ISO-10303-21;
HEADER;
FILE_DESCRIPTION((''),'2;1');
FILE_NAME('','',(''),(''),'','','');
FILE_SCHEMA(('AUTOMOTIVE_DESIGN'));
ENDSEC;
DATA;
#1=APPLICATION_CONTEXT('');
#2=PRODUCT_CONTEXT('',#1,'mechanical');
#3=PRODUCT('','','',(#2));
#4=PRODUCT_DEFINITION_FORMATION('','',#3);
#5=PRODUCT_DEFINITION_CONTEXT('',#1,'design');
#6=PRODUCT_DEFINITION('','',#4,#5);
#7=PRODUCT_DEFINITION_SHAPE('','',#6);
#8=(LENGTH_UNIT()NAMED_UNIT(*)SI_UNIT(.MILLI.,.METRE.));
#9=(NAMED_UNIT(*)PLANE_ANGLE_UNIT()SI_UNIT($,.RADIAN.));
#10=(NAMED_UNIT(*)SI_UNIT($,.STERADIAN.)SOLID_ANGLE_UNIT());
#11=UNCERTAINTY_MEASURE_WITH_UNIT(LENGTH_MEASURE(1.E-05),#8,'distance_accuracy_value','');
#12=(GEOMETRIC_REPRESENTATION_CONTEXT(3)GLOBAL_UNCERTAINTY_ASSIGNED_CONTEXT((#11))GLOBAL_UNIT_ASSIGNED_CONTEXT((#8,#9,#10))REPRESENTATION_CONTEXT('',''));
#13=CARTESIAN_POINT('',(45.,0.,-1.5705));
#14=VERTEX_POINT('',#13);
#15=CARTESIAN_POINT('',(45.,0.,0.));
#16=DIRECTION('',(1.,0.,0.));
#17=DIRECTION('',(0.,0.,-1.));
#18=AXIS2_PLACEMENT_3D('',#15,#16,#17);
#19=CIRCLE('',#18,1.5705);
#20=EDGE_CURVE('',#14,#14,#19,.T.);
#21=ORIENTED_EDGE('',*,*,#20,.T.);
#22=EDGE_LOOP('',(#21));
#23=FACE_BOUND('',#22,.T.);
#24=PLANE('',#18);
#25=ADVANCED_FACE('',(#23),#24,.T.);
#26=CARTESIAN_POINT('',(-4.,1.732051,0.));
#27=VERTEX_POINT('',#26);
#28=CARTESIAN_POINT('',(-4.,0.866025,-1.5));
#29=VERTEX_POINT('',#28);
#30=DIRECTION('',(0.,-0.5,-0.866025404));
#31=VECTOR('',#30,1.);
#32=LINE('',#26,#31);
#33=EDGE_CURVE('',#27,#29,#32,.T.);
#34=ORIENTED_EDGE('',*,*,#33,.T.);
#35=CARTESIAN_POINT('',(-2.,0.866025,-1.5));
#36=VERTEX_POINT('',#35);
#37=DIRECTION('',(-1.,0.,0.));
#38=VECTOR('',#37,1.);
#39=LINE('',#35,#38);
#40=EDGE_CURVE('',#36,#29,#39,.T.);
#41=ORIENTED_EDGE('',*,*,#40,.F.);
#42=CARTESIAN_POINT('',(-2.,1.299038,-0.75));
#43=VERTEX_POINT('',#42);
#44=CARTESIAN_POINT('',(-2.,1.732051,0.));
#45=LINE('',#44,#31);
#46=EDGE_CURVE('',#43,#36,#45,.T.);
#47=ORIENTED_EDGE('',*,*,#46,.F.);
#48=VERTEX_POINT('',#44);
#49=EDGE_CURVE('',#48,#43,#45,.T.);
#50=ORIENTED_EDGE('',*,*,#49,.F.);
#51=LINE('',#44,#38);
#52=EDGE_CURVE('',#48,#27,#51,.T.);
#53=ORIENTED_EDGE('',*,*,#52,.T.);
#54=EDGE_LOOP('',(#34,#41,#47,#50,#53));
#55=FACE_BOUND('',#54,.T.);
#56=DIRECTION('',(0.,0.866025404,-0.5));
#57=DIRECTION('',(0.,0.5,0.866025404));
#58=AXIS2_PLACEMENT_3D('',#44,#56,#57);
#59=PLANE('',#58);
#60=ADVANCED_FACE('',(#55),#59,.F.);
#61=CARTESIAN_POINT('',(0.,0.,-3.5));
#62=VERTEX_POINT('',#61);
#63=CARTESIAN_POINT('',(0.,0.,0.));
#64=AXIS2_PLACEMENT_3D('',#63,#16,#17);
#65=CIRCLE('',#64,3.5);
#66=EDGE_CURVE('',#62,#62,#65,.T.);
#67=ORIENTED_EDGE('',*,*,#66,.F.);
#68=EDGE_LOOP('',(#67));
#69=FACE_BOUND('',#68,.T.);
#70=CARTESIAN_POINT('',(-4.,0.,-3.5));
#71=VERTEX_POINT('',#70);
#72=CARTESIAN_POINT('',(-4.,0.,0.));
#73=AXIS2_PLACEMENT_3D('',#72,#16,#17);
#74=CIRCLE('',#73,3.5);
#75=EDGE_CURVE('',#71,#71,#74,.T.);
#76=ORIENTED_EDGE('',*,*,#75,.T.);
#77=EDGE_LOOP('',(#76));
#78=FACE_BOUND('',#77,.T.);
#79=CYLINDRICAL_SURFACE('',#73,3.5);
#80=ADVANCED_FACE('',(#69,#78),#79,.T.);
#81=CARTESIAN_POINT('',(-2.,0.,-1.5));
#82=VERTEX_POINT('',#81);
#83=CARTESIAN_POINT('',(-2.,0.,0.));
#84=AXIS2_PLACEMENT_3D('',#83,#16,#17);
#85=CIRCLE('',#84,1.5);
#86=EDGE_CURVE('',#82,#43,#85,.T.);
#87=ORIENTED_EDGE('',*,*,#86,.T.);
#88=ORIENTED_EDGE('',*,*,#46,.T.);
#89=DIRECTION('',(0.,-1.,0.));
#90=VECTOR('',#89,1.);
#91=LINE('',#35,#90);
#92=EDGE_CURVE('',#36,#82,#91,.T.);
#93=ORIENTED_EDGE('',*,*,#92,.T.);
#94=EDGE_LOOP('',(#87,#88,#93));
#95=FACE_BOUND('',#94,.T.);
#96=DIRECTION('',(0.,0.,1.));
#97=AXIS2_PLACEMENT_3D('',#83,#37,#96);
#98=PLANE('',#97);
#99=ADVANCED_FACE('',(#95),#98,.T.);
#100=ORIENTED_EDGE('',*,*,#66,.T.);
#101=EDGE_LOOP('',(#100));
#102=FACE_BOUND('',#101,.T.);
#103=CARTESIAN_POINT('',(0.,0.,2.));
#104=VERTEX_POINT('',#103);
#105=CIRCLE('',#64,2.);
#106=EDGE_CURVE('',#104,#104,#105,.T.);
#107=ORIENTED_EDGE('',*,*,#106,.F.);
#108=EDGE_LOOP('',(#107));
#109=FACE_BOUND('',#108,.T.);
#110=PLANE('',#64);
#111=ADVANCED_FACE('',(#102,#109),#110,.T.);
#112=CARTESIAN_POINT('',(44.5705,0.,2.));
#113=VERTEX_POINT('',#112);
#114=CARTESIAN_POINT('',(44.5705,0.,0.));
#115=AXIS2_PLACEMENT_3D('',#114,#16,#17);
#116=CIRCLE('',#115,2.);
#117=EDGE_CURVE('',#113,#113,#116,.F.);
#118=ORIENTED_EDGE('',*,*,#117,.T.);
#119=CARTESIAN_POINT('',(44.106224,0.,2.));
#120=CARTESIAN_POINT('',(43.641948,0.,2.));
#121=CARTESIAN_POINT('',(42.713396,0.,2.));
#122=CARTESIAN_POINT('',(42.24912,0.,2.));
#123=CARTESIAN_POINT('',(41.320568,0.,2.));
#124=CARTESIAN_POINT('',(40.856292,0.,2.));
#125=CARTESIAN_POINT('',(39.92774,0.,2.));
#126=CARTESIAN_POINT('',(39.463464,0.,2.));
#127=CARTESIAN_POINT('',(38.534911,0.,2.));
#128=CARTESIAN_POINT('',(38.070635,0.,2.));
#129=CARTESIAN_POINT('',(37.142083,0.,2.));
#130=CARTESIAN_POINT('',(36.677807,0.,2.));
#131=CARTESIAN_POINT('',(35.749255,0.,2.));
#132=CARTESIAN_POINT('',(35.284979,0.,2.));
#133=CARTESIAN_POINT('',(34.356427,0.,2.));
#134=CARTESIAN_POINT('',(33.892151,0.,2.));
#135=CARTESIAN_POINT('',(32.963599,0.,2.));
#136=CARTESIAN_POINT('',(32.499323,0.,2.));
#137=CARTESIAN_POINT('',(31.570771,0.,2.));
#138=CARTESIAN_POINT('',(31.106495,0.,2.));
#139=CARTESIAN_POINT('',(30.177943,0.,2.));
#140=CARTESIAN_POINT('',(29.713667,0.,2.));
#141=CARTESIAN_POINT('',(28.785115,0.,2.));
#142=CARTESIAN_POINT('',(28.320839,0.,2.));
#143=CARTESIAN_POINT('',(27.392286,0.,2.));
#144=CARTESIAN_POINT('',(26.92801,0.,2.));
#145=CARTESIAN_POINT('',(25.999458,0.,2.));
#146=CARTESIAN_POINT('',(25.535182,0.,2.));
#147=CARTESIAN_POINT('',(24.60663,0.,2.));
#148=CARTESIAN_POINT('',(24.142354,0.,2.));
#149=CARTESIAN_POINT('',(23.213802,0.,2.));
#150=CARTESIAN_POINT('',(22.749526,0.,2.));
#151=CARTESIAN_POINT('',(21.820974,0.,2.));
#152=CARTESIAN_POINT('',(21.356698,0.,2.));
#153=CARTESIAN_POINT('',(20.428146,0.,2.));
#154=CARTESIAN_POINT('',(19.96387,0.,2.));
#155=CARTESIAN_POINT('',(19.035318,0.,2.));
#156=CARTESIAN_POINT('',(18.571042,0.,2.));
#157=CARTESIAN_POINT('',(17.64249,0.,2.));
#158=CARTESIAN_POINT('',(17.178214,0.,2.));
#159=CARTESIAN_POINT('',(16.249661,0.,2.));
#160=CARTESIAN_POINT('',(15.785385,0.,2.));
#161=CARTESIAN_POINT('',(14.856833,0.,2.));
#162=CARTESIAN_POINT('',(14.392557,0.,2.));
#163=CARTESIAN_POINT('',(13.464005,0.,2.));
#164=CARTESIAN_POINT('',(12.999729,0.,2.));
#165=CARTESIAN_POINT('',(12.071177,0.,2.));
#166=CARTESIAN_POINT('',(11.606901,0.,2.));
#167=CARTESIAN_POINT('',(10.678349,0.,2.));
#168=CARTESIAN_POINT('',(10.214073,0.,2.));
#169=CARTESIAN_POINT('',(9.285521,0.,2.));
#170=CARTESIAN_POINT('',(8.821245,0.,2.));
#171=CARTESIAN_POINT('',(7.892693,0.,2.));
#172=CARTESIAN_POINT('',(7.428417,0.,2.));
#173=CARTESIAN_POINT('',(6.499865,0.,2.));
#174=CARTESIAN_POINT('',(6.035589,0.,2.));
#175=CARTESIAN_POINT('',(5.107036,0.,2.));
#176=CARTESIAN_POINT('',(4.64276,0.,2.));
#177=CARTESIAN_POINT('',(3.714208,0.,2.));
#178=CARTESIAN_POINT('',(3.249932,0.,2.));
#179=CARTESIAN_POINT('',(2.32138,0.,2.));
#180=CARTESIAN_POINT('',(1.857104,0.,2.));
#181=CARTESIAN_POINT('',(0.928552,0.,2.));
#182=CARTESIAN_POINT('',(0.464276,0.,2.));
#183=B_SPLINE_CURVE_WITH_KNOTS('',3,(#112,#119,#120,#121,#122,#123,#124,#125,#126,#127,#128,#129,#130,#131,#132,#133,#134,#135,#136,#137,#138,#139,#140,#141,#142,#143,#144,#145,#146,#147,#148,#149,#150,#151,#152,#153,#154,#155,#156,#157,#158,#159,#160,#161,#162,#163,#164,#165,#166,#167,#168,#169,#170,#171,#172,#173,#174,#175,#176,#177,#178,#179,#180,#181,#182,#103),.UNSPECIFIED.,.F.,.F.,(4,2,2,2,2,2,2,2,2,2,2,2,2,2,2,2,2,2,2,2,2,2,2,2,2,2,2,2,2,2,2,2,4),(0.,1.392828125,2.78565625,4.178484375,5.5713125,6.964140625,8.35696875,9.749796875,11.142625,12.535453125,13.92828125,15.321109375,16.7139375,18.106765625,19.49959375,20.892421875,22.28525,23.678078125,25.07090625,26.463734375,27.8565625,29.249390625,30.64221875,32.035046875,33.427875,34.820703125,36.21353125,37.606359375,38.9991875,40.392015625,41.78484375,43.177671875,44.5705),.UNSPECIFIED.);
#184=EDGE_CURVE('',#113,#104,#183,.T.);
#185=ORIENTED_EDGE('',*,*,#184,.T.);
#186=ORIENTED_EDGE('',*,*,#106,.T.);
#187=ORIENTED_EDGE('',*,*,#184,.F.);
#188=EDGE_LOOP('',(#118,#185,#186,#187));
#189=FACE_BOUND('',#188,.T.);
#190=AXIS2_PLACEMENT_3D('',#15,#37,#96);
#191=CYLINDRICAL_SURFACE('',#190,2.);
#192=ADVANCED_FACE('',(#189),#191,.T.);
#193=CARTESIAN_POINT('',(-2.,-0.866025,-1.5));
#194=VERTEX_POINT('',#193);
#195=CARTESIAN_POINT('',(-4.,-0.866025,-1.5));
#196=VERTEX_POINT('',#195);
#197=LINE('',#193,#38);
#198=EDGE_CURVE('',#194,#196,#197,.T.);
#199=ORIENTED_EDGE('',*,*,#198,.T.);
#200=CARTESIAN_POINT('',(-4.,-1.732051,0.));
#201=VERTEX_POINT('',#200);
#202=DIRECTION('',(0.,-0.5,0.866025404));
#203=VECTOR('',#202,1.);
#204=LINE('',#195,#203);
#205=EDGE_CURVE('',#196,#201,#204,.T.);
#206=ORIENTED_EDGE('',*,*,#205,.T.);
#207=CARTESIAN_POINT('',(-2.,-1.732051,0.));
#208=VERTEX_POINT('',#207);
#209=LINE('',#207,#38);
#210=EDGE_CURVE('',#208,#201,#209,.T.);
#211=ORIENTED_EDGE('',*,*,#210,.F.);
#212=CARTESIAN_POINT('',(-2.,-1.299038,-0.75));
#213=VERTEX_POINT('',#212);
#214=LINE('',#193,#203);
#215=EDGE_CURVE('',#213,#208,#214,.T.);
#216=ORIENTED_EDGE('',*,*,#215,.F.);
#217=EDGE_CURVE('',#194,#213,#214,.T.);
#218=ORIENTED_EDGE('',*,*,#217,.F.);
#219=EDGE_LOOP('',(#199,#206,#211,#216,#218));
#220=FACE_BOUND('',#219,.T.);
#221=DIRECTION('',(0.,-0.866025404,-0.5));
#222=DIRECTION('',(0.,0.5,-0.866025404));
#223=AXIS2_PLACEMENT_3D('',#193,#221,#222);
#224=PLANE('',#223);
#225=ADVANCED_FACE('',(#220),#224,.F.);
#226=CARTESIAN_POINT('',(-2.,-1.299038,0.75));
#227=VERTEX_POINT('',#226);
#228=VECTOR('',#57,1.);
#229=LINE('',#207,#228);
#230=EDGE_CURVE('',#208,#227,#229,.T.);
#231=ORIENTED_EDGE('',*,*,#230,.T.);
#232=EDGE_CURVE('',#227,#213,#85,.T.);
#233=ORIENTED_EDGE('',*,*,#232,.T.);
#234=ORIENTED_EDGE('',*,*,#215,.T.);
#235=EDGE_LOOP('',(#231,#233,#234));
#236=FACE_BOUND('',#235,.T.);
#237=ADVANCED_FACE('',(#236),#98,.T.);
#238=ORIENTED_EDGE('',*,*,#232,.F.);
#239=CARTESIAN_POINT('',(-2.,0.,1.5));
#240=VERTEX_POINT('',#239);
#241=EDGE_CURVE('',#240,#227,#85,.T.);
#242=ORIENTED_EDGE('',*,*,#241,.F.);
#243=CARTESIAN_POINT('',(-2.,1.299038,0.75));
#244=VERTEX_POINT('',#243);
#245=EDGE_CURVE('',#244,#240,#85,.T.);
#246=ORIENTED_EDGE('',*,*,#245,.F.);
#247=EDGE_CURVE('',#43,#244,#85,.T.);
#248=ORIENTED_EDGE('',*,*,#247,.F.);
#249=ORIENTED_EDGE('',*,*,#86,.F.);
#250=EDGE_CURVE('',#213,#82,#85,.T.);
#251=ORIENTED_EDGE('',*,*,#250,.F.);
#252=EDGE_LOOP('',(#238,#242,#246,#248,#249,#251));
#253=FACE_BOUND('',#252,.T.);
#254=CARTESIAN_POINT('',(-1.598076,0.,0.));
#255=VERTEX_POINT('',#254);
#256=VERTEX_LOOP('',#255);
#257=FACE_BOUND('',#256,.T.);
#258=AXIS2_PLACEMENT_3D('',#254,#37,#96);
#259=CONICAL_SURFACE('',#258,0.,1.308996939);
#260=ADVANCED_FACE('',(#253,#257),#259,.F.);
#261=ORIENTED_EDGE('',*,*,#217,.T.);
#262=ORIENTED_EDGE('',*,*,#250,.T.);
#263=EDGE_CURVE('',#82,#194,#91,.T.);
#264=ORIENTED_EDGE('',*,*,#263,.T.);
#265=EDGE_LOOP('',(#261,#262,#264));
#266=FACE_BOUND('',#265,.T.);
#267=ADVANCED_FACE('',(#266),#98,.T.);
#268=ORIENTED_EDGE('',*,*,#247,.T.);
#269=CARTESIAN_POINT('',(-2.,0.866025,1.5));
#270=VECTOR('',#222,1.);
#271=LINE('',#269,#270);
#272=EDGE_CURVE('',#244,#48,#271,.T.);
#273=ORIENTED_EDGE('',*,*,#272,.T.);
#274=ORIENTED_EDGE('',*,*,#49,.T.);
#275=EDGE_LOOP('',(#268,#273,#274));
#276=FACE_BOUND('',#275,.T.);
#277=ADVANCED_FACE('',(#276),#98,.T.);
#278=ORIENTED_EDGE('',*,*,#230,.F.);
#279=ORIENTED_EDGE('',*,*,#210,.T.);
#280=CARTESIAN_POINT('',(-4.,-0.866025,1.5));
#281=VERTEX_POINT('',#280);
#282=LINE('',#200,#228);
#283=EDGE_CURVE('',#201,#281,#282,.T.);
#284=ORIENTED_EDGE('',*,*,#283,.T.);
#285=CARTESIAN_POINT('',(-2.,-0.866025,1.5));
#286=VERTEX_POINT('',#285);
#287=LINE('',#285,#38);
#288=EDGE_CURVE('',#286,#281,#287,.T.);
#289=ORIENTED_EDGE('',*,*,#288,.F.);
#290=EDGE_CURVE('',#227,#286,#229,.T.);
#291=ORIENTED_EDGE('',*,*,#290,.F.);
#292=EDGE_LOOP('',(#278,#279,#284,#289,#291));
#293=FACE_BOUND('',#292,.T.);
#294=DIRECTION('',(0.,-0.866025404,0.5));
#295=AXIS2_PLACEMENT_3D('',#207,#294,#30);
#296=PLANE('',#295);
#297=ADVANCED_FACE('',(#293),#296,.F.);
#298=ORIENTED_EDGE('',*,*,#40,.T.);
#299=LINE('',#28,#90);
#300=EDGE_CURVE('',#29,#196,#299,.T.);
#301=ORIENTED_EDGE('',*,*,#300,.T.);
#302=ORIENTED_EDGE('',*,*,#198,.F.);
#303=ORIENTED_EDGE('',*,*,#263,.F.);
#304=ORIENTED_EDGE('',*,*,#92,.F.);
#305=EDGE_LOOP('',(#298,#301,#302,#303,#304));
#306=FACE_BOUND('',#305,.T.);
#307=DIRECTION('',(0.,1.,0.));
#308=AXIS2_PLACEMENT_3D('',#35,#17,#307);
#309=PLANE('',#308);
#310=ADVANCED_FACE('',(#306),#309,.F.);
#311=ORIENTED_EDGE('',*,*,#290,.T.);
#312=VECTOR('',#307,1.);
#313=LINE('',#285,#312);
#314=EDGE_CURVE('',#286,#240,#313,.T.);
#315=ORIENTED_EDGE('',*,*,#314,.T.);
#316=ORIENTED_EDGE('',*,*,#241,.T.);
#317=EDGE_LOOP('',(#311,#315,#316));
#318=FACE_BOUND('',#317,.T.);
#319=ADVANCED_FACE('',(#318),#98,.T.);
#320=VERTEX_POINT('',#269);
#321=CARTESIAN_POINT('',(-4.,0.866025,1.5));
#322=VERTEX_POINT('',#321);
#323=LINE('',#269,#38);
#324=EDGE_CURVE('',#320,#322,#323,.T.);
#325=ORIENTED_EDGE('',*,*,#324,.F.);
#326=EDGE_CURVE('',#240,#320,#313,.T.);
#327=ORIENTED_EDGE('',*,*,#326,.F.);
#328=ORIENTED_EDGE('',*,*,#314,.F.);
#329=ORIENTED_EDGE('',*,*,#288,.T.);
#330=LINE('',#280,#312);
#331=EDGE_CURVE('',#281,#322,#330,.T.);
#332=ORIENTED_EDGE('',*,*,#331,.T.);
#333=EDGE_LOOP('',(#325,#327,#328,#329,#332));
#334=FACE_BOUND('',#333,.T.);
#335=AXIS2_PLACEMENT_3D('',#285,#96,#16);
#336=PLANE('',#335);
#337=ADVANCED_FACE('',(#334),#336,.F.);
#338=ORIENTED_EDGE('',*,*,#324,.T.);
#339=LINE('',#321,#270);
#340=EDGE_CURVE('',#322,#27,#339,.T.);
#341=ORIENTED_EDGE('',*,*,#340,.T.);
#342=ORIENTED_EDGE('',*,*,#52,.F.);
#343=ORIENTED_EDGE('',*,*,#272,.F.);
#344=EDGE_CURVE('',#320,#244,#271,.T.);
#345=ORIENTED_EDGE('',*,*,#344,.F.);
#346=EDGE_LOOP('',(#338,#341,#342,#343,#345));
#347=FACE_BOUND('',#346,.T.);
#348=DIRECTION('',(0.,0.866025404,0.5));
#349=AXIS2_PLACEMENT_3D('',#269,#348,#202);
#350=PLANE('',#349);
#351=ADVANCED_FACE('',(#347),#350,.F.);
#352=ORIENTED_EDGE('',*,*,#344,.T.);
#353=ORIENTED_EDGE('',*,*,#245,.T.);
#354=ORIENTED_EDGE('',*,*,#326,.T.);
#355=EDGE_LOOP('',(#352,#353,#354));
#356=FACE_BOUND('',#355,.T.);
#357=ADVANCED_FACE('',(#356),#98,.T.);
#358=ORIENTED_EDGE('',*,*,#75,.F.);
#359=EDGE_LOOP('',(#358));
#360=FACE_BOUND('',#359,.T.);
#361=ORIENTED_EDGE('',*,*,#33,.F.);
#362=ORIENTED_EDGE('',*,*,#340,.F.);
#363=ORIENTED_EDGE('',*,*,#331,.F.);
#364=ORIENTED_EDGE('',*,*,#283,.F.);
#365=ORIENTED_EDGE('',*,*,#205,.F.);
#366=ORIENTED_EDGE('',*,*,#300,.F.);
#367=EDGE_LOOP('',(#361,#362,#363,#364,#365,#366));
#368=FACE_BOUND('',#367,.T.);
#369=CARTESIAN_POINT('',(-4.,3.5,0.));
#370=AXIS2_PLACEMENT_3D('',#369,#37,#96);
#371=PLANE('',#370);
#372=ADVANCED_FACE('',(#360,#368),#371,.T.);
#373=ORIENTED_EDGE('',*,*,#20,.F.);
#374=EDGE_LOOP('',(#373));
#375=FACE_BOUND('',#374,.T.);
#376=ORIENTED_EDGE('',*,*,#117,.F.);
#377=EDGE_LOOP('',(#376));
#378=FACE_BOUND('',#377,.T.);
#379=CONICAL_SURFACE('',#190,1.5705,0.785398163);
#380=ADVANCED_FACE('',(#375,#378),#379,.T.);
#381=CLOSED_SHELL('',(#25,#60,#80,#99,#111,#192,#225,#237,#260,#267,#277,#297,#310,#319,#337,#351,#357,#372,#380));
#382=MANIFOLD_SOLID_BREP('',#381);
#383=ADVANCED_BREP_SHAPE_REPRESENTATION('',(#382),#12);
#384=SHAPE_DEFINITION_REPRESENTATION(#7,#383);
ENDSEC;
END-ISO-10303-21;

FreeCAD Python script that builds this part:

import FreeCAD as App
import Part
import Sketcher
Q = App.Units.Quantity


def edges_at(feature, points):
    """Names of the edges that pass closest to the given points."""
    edges = feature.Shape.Edges
    near = lambda p: min(range(len(edges)), key=lambda i: edges[i].distToShape(Part.Vertex(*p))[0])
    return sorted({f"Edge{near(p) + 1}" for p in points})

doc = App.newDocument("Part")
body = doc.addObject("PartDesign::Body", "Body")

# Sketch on XY plane
sketch1 = body.newObject("Sketcher::SketchObject", "Sketch")
sketch1.AttachmentSupport = (doc.getObject("XY_Plane"), [""])
sketch1.MapMode = "FlatFace"
sketch1.addGeometry(Part.LineSegment(App.Vector(-4, 3.5, 0), App.Vector(-4, 0, 0)), False)
sketch1.addGeometry(Part.LineSegment(App.Vector(-4, 0, 0), App.Vector(0, 0, 0)), False)
sketch1.addGeometry(Part.LineSegment(App.Vector(0, 0, 0), App.Vector(0, 3.5, 0)), False)
sketch1.addGeometry(Part.LineSegment(App.Vector(0, 3.5, 0), App.Vector(-4, 3.5, 0)), False)
sketch1.addConstraint(Sketcher.Constraint("Coincident", 0, 2, 1, 1))
sketch1.addConstraint(Sketcher.Constraint("Coincident", 1, 2, 2, 1))
sketch1.addConstraint(Sketcher.Constraint("Coincident", 2, 2, 3, 1))
sketch1.addConstraint(Sketcher.Constraint("Coincident", 3, 2, 0, 1))
sketch1.addConstraint(Sketcher.Constraint("Vertical", 0))
sketch1.addConstraint(Sketcher.Constraint("Horizontal", 1))
sketch1.addConstraint(Sketcher.Constraint("Vertical", 2))
sketch1.addConstraint(Sketcher.Constraint("Horizontal", 3))
sketch1.addConstraint(Sketcher.Constraint("Coincident", 1, 2, -1, 1))
sketch1.addConstraint(Sketcher.Constraint("DistanceX", 1, 1, 1, 2, 4.0))
sketch1.addConstraint(Sketcher.Constraint("DistanceY", 0, 2, 0, 1, 3.5))
revolution = body.newObject("PartDesign::Revolution", "Revolution")
revolution.Profile = sketch1
revolution.ReferenceAxis = (sketch1, ["H_Axis"])
revolution.Angle = 360

# Sketch on YZ plane
sketch2 = body.newObject("Sketcher::SketchObject", "Sketch001")
sketch2.AttachmentSupport = (doc.getObject("YZ_Plane"), [""])
sketch2.MapMode = "FlatFace"
sketch2.addGeometry(Part.Circle(App.Vector(0, 0, 0), App.Vector(0, 0, 1), 2), False)
sketch2.addConstraint(Sketcher.Constraint("Coincident", 0, 3, -1, 1))
sketch2.addConstraint(Sketcher.Constraint("Diameter", 0, 4.0))
pad1 = body.newObject("PartDesign::Pad", "Pad")
pad1.Profile = sketch2
pad1.Length = 45

# Sketch on YZ plane
sketch3 = body.newObject("Sketcher::SketchObject", "Sketch002")
sketch3.AttachmentSupport = (doc.getObject("YZ_Plane"), [""])
sketch3.MapMode = "FlatFace"
sketch3.AttachmentOffset = App.Placement(App.Vector(0, 0, -4), App.Rotation())
sketch3.addGeometry(Part.LineSegment(App.Vector(-0.866025, 1.5, 0), App.Vector(0.866025, 1.5, 0)), False)
sketch3.addGeometry(Part.LineSegment(App.Vector(0.866025, 1.5, 0), App.Vector(1.732051, 0, 0)), False)
sketch3.addGeometry(Part.LineSegment(App.Vector(1.732051, 0, 0), App.Vector(0.866025, -1.5, 0)), False)
sketch3.addGeometry(Part.LineSegment(App.Vector(0.866025, -1.5, 0), App.Vector(-0.866025, -1.5, 0)), False)
sketch3.addGeometry(Part.LineSegment(App.Vector(-0.866025, -1.5, 0), App.Vector(-1.732051, 0, 0)), False)
sketch3.addGeometry(Part.LineSegment(App.Vector(-1.732051, 0, 0), App.Vector(-0.866025, 1.5, 0)), False)
sketch3.addConstraint(Sketcher.Constraint("Coincident", 0, 2, 1, 1))
sketch3.addConstraint(Sketcher.Constraint("Coincident", 1, 2, 2, 1))
sketch3.addConstraint(Sketcher.Constraint("Coincident", 2, 2, 3, 1))
sketch3.addConstraint(Sketcher.Constraint("Coincident", 3, 2, 4, 1))
sketch3.addConstraint(Sketcher.Constraint("Coincident", 4, 2, 5, 1))
sketch3.addConstraint(Sketcher.Constraint("Coincident", 5, 2, 0, 1))
sketch3.addConstraint(Sketcher.Constraint("Horizontal", 0))
sketch3.addConstraint(Sketcher.Constraint("Horizontal", 3))
sketch3.addConstraint(Sketcher.Constraint("Symmetric", 0, 2, 3, 2, -1, 1))
sketch3.addConstraint(Sketcher.Constraint("Symmetric", 1, 2, 4, 2, -1, 1))
sketch3.addConstraint(Sketcher.Constraint("PointOnObject", 1, 2, -1))
sketch3.addConstraint(Sketcher.Constraint("Parallel", 2, 5))
sketch3.addConstraint(Sketcher.Constraint("Vertical", 0, 2, 2, 2))
sketch3.addConstraint(Sketcher.Constraint("Angle", 1, Q("-60 deg")))
sketch3.addConstraint(Sketcher.Constraint("DistanceY", 2, 2, 0, 2, 3.0))
sketch3.addConstraint(Sketcher.Constraint("DistanceX", 0, 1, 0, 2, 1.732051))
pocket1 = body.newObject("PartDesign::Pocket", "Pocket")
pocket1.Profile = sketch3
pocket1.Length = 2
pocket1.Reversed = True

# Sketch on XY plane
sketch4 = body.newObject("Sketcher::SketchObject", "Sketch003")
sketch4.AttachmentSupport = (doc.getObject("XY_Plane"), [""])
sketch4.MapMode = "FlatFace"
sketch4.addGeometry(Part.LineSegment(App.Vector(-2, 1.5, 0), App.Vector(-2, 0, 0)), False)
sketch4.addGeometry(Part.LineSegment(App.Vector(-2, 0, 0), App.Vector(-1.598076, 0, 0)), False)
sketch4.addGeometry(Part.LineSegment(App.Vector(-1.598076, 0, 0), App.Vector(-2, 1.5, 0)), False)
sketch4.addConstraint(Sketcher.Constraint("Coincident", 0, 2, 1, 1))
sketch4.addConstraint(Sketcher.Constraint("Coincident", 1, 2, 2, 1))
sketch4.addConstraint(Sketcher.Constraint("Coincident", 2, 2, 0, 1))
sketch4.addConstraint(Sketcher.Constraint("Vertical", 0))
sketch4.addConstraint(Sketcher.Constraint("Horizontal", 1))
sketch4.addConstraint(Sketcher.Constraint("PointOnObject", 0, 2, -1))
sketch4.addConstraint(Sketcher.Constraint("Angle", 2, Q("105 deg")))
sketch4.addConstraint(Sketcher.Constraint("DistanceY", 0, 2, 0, 1, 1.5))
sketch4.addConstraint(Sketcher.Constraint("DistanceX", 0, 2, -1, 1, 2.0))
groove = body.newObject("PartDesign::Groove", "Groove")
groove.Profile = sketch4
groove.ReferenceAxis = (sketch4, ["H_Axis"])
groove.Angle = 360
doc.recompute()

chamfer = body.newObject("PartDesign::Chamfer", "Chamfer")
chamfer.Base = (groove, edges_at(groove, [(45, 0, -2)]))
chamfer.Size = 0.4295

doc.recompute()
